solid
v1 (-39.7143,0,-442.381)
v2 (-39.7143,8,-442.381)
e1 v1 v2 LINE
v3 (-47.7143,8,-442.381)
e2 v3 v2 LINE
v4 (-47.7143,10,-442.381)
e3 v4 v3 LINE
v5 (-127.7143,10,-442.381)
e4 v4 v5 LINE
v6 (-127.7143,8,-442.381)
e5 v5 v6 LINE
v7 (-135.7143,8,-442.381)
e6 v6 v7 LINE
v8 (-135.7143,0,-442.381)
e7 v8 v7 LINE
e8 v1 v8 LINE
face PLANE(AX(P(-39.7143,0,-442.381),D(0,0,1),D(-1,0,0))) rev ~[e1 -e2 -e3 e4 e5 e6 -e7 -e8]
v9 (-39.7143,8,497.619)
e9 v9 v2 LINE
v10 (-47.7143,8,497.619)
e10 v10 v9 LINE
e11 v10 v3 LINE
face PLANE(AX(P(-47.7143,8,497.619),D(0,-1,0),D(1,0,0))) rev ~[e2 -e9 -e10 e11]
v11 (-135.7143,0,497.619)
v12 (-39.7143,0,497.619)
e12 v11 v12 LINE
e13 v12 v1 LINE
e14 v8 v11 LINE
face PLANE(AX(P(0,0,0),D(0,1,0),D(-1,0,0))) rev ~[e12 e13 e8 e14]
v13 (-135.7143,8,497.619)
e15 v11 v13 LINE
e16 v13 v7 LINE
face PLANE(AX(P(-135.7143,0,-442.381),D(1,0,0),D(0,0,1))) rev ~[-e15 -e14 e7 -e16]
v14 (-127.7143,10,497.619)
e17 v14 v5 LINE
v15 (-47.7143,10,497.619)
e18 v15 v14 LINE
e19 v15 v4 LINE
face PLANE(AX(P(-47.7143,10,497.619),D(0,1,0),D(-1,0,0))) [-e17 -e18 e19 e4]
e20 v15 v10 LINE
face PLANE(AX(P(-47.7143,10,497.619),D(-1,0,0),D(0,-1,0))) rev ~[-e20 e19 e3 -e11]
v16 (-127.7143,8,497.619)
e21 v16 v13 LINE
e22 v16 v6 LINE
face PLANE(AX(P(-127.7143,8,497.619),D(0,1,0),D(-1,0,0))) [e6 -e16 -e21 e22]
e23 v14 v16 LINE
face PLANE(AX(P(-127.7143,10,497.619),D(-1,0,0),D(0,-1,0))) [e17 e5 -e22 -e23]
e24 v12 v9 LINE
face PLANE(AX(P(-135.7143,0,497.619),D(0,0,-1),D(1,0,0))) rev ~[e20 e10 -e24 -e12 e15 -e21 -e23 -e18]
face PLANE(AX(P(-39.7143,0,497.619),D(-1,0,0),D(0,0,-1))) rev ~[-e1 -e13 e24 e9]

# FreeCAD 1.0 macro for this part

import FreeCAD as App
import Part
import Sketcher

doc = App.newDocument("Part")
params = doc.addObject("Spreadsheet::Sheet", "Params")
for row, (alias, value) in enumerate([
    ("sketch1_width", "96 mm"),
    ("sketch1_height", "940 mm"),
    ("pad1_length", "14 mm"),
    ("sketch2_width", "8 mm"),
    ("sketch2_height", "6 mm"),
    ("sketch2_width2", "96 mm"),
    ("sketch2_height2", "2 mm"),
], start=1):
    params.set(f"A{row}", alias)
    params.set(f"B{row}", "=" + value)
    params.setAlias(f"B{row}", alias)

body = doc.addObject("PartDesign::Body", "Body")

# Sketch on XZ plane
sketch1 = doc.addObject("Sketcher::SketchObject", "Sketch")
body.addObject(sketch1)
sketch1.AttachmentSupport = (doc.XZ_Plane, [""])
sketch1.MapMode = "FlatFace"
sketch1.addGeometry(Part.LineSegment(App.Vector(-136, -442, 0), App.Vector(-136, 498, 0)), False)
sketch1.addGeometry(Part.LineSegment(App.Vector(-136, 498, 0), App.Vector(-40, 498, 0)), False)
sketch1.addGeometry(Part.LineSegment(App.Vector(-40, 498, 0), App.Vector(-40, -442, 0)), False)
sketch1.addGeometry(Part.LineSegment(App.Vector(-40, -442, 0), App.Vector(-136, -442, 0)), False)
sketch1.addConstraint(Sketcher.Constraint("Coincident", 0, 2, 1, 1))
sketch1.addConstraint(Sketcher.Constraint("Coincident", 1, 2, 2, 1))
sketch1.addConstraint(Sketcher.Constraint("Coincident", 2, 2, 3, 1))
sketch1.addConstraint(Sketcher.Constraint("Coincident", 3, 2, 0, 1))
sketch1.addConstraint(Sketcher.Constraint("Vertical", 0))
sketch1.addConstraint(Sketcher.Constraint("Horizontal", 1))
sketch1.addConstraint(Sketcher.Constraint("Vertical", 2))
sketch1.addConstraint(Sketcher.Constraint("Horizontal", 3))
sketch1.addConstraint(Sketcher.Constraint("DistanceX", 1, 1, 1, 2, 96.0))
sketch1.addConstraint(Sketcher.Constraint("DistanceY", 0, 1, 0, 2, 940.0))
sketch1.addConstraint(Sketcher.Constraint("DistanceY", -1, 1, 0, 2, 497.619))
sketch1.addConstraint(Sketcher.Constraint("DistanceX", 0, 2, -1, 1, 135.7143))
sketch1.setExpression("Constraints[8]", "Params.sketch1_width")
sketch1.setExpression("Constraints[9]", "Params.sketch1_height")
pad1 = doc.addObject("PartDesign::Pad", "Pad")
body.addObject(pad1)
pad1.Profile = sketch1
pad1.setExpression("Length", "Params.pad1_length")
pad1.Reversed = True

# Sketch on XY plane
sketch2 = doc.addObject("Sketcher::SketchObject", "Sketch001")
body.addObject(sketch2)
sketch2.AttachmentSupport = (doc.XY_Plane, [""])
sketch2.MapMode = "FlatFace"
sketch2.AttachmentOffset = App.Placement(App.Vector(0, 0, 497.619), App.Rotation())
sketch2.addGeometry(Part.LineSegment(App.Vector(-39.7, 8, 0), App.Vector(-39.7, 14, 0)), False)
sketch2.addGeometry(Part.LineSegment(App.Vector(-39.7, 14, 0), App.Vector(-135.7, 14, 0)), False)
sketch2.addGeometry(Part.LineSegment(App.Vector(-135.7, 14, 0), App.Vector(-135.7, 8, 0)), False)
sketch2.addGeometry(Part.LineSegment(App.Vector(-135.7, 8, 0), App.Vector(-127.7, 8, 0)), False)
sketch2.addGeometry(Part.LineSegment(App.Vector(-127.7, 8, 0), App.Vector(-127.7, 10, 0)), False)
sketch2.addGeometry(Part.LineSegment(App.Vector(-127.7, 10, 0), App.Vector(-47.7, 10, 0)), False)
sketch2.addGeometry(Part.LineSegment(App.Vector(-47.7, 10, 0), App.Vector(-47.7, 8, 0)), False)
sketch2.addGeometry(Part.LineSegment(App.Vector(-47.7, 8, 0), App.Vector(-39.7, 8, 0)), False)
sketch2.addConstraint(Sketcher.Constraint("Coincident", 0, 2, 1, 1))
sketch2.addConstraint(Sketcher.Constraint("Coincident", 1, 2, 2, 1))
sketch2.addConstraint(Sketcher.Constraint("Coincident", 2, 2, 3, 1))
sketch2.addConstraint(Sketcher.Constraint("Coincident", 3, 2, 4, 1))
sketch2.addConstraint(Sketcher.Constraint("Coincident", 4, 2, 5, 1))
sketch2.addConstraint(Sketcher.Constraint("Coincident", 5, 2, 6, 1))
sketch2.addConstraint(Sketcher.Constraint("Coincident", 6, 2, 7, 1))
sketch2.addConstraint(Sketcher.Constraint("Coincident", 7, 2, 0, 1))
sketch2.addConstraint(Sketcher.Constraint("Vertical", 0))
sketch2.addConstraint(Sketcher.Constraint("Horizontal", 1))
sketch2.addConstraint(Sketcher.Constraint("Vertical", 2))
sketch2.addConstraint(Sketcher.Constraint("Horizontal", 3))
sketch2.addConstraint(Sketcher.Constraint("Vertical", 4))
sketch2.addConstraint(Sketcher.Constraint("Horizontal", 5))
sketch2.addConstraint(Sketcher.Constraint("Vertical", 6))
sketch2.addConstraint(Sketcher.Constraint("Horizontal", 7))
sketch2.addConstraint(Sketcher.Constraint("Horizontal", 3, 2, 6, 2))
sketch2.addConstraint(Sketcher.Constraint("Equal", 3, 7))
sketch2.addConstraint(Sketcher.Constraint("DistanceX", 3, 1, 3, 2, 8.0))
sketch2.addConstraint(Sketcher.Constraint("DistanceY", 0, 1, 0, 2, 6.0))
sketch2.addConstraint(Sketcher.Constraint("DistanceY", -1, 1, 2, 2, 8.0))
sketch2.addConstraint(Sketcher.Constraint("DistanceX", 1, 2, 1, 1, 96.0))
sketch2.addConstraint(Sketcher.Constraint("DistanceY", 4, 1, 4, 2, 2.0))
sketch2.addConstraint(Sketcher.Constraint("DistanceX", 0, 2, -1, 1, 39.7143))
sketch2.setExpression("Constraints[18]", "Params.sketch2_width")
sketch2.setExpression("Constraints[19]", "Params.sketch2_height")
sketch2.setExpression("Constraints[21]", "Params.sketch2_width2")
sketch2.setExpression("Constraints[22]", "Params.sketch2_height2")
pocket1 = doc.addObject("PartDesign::Pocket", "Pocket")
body.addObject(pocket1)
pocket1.Profile = sketch2
pocket1.Type = "ThroughAll"

doc.recompute()
